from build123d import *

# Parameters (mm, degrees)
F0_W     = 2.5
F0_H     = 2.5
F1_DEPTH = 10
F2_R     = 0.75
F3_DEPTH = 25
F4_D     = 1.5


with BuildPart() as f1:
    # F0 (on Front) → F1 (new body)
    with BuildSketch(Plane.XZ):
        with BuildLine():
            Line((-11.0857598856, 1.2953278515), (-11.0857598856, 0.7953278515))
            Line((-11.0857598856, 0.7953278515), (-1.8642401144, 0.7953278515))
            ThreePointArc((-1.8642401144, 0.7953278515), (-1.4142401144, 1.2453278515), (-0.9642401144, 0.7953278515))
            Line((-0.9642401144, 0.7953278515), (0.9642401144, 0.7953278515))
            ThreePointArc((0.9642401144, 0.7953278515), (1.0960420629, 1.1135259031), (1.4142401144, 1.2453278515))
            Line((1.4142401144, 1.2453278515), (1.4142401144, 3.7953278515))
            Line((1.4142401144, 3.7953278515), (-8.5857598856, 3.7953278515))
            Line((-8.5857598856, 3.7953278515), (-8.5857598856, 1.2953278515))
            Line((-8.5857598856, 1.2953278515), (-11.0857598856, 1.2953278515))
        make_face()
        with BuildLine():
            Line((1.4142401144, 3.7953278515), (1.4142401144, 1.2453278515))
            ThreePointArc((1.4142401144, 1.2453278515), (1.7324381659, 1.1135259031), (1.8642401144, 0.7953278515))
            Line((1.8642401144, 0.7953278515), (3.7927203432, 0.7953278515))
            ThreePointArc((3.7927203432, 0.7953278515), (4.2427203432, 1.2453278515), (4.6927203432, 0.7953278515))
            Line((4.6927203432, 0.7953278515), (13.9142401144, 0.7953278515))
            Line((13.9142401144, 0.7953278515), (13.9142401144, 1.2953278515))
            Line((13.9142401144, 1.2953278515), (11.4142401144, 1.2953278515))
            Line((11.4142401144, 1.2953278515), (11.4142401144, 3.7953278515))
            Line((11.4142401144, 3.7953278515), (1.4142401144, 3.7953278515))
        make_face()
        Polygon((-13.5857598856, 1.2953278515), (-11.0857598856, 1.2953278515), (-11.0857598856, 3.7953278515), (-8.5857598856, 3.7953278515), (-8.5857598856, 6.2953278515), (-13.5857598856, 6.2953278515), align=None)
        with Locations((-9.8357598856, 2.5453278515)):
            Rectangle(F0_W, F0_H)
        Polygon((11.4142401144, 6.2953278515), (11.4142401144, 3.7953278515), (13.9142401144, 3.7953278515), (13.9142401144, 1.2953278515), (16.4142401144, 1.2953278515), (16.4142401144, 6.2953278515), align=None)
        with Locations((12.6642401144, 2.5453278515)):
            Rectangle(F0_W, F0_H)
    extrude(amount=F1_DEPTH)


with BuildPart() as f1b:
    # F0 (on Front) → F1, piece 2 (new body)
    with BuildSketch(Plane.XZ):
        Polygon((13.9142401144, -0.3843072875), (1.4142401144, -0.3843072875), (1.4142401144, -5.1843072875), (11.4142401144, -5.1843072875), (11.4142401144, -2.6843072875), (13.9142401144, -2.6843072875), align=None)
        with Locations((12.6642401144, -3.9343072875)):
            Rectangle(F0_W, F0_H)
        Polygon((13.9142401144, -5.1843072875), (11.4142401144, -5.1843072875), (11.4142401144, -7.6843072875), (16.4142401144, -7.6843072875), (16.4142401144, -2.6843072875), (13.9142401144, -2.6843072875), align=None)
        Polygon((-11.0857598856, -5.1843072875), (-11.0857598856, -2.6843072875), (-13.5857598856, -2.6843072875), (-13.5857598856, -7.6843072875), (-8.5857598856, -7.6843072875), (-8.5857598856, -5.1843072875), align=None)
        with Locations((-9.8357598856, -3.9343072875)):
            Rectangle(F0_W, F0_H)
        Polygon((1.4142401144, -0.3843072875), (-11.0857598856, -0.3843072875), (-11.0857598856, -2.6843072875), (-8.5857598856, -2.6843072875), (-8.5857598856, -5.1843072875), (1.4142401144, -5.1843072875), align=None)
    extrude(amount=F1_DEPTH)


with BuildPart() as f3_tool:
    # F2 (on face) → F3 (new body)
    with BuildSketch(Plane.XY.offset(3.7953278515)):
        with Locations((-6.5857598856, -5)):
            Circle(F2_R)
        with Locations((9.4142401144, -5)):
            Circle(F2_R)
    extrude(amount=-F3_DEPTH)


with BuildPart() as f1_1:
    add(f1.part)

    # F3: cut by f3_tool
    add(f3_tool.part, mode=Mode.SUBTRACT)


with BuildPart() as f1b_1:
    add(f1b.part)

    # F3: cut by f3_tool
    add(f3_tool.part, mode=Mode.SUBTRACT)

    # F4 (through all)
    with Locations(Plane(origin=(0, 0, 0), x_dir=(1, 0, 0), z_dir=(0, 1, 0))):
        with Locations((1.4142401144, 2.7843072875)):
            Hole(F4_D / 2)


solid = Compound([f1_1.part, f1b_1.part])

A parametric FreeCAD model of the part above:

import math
import FreeCAD as App
import Part
import Sketcher
Q = App.Units.Quantity

doc = App.newDocument("Part")
params = doc.addObject("Spreadsheet::Sheet", "Params")
for row, (alias, value) in enumerate([
    ("sketch1_width", "5 mm"),
    ("sketch1_width2", "20 mm"),
    ("sketch1_radius", "0.45 mm"),
    ("sketch1_width3", "2.5 mm"),
    ("sketch1_height", "0.5 mm"),
    ("pad1_length", "10 mm"),
    ("sketch2_width", "25 mm"),
    ("sketch2_width2", "5 mm"),
    ("sketch2_width3", "20 mm"),
    ("sketch2_height", "2.3 mm"),
    ("pad2_length", "10 mm"),
    ("sketch3_diameter", "1.5 mm"),
    ("pad3_length", "25 mm"),
    ("sketch4_diameter", "1.5 mm"),
    ("hole_diameter", "1.5 mm"),
], start=1):
    params.set(f"A{row}", alias)
    params.set(f"B{row}", "=" + value)
    params.setAlias(f"B{row}", alias)

body = doc.addObject("PartDesign::Body", "Body")

# Sketch on XZ plane
sketch1 = doc.addObject("Sketcher::SketchObject", "Sketch")
body.addObject(sketch1)
sketch1.AttachmentSupport = (doc.XZ_Plane, [""])
sketch1.MapMode = "FlatFace"
sketch1.addGeometry([
    Part.LineSegment(App.Vector(-11.09, 1.3, 0), App.Vector(-11.09, 0.8, 0)),  # 0
    Part.LineSegment(App.Vector(-11.09, 0.8, 0), App.Vector(-1.86, 0.8, 0)),  # 1
    Part.ArcOfCircle(Part.Circle(App.Vector(-1.41, 0.8, 0), App.Vector(0, 0, 1), 0.45), math.radians(0), math.radians(180)),  # 2
    Part.LineSegment(App.Vector(-0.96, 0.8, 0), App.Vector(0.96, 0.8, 0)),  # 3
    Part.ArcOfCircle(Part.Circle(App.Vector(1.41, 0.8, 0), App.Vector(0, 0, 1), 0.45), math.radians(90), math.radians(180)),  # 4
    Part.ArcOfCircle(Part.Circle(App.Vector(1.41, 0.8, 0), App.Vector(0, 0, 1), 0.45), math.radians(0), math.radians(90)),  # 5
    Part.LineSegment(App.Vector(1.86, 0.8, 0), App.Vector(3.79, 0.8, 0)),  # 6
    Part.ArcOfCircle(Part.Circle(App.Vector(4.24, 0.8, 0), App.Vector(0, 0, 1), 0.45), math.radians(0), math.radians(180)),  # 7
    Part.LineSegment(App.Vector(4.69, 0.8, 0), App.Vector(13.91, 0.8, 0)),  # 8
    Part.LineSegment(App.Vector(13.91, 0.8, 0), App.Vector(13.91, 1.3, 0)),  # 9
    Part.LineSegment(App.Vector(13.91, 1.3, 0), App.Vector(16.41, 1.3, 0)),  # 10
    Part.LineSegment(App.Vector(16.41, 1.3, 0), App.Vector(16.41, 6.3, 0)),  # 11
    Part.LineSegment(App.Vector(16.41, 6.3, 0), App.Vector(11.41, 6.3, 0)),  # 12
    Part.LineSegment(App.Vector(11.41, 6.3, 0), App.Vector(11.41, 3.8, 0)),  # 13
    Part.LineSegment(App.Vector(11.41, 3.8, 0), App.Vector(-8.59, 3.8, 0)),  # 14
    Part.LineSegment(App.Vector(-8.59, 3.8, 0), App.Vector(-8.59, 6.3, 0)),  # 15
    Part.LineSegment(App.Vector(-8.59, 6.3, 0), App.Vector(-13.59, 6.3, 0)),  # 16
    Part.LineSegment(App.Vector(-13.59, 6.3, 0), App.Vector(-13.59, 1.3, 0)),  # 17
    Part.LineSegment(App.Vector(-13.59, 1.3, 0), App.Vector(-11.09, 1.3, 0)),  # 18
], False)
sketch1.addConstraint([
    Sketcher.Constraint("Coincident", 0, 2, 1, 1),
    Sketcher.Constraint("Coincident", 1, 2, 2, 2),
    Sketcher.Constraint("Coincident", 2, 1, 3, 1),
    Sketcher.Constraint("Coincident", 3, 2, 4, 2),
    Sketcher.Constraint("Tangent", 4, 1, 5, 2),
    Sketcher.Constraint("Coincident", 5, 1, 6, 1),
    Sketcher.Constraint("Coincident", 6, 2, 7, 2),
    Sketcher.Constraint("Coincident", 7, 1, 8, 1),
    Sketcher.Constraint("Coincident", 8, 2, 9, 1),
    Sketcher.Constraint("Coincident", 9, 2, 10, 1),
    Sketcher.Constraint("Coincident", 10, 2, 11, 1),
    Sketcher.Constraint("Coincident", 11, 2, 12, 1),
    Sketcher.Constraint("Coincident", 12, 2, 13, 1),
    Sketcher.Constraint("Coincident", 13, 2, 14, 1),
    Sketcher.Constraint("Coincident", 14, 2, 15, 1),
    Sketcher.Constraint("Coincident", 15, 2, 16, 1),
    Sketcher.Constraint("Coincident", 16, 2, 17, 1),
    Sketcher.Constraint("Coincident", 17, 2, 18, 1),
    Sketcher.Constraint("Coincident", 18, 2, 0, 1),
    Sketcher.Constraint("Vertical", 0),
    Sketcher.Constraint("Horizontal", 1),
    Sketcher.Constraint("Horizontal", 3),
    Sketcher.Constraint("Horizontal", 6),
    Sketcher.Constraint("Horizontal", 8),
    Sketcher.Constraint("Vertical", 9),
    Sketcher.Constraint("Horizontal", 10),
    Sketcher.Constraint("Vertical", 11),
    Sketcher.Constraint("Horizontal", 12),
    Sketcher.Constraint("Vertical", 13),
    Sketcher.Constraint("Horizontal", 14),
    Sketcher.Constraint("Vertical", 15),
    Sketcher.Constraint("Horizontal", 16),
    Sketcher.Constraint("Vertical", 17),
    Sketcher.Constraint("Horizontal", 18),
    Sketcher.Constraint("Equal", 2, 4),
    Sketcher.Constraint("Equal", 4, 5),
    Sketcher.Constraint("Equal", 5, 7),
    Sketcher.Constraint("Symmetric", 2, 3, 4, 3, -2),
    Sketcher.Constraint("Horizontal", 5, 3, 7, 3),
    Sketcher.Constraint("Horizontal", 7, 3, 0, 2),
    Sketcher.Constraint("Horizontal", 1, 2, 2, 1),
    Sketcher.Constraint("Horizontal", 3, 2, 5, 1),
    Sketcher.Constraint("Horizontal", 6, 2, 7, 1),
    Sketcher.Constraint("Horizontal", 12, 2, 15, 2),
    Sketcher.Constraint("Horizontal", 10, 2, 17, 2),
    Sketcher.Constraint("Vertical", 5, 3, 4, 1),
    Sketcher.Constraint("Equal", 3, 6),
    Sketcher.Constraint("Equal", 1, 8),
    Sketcher.Constraint("Equal", 12, 16),
    Sketcher.Constraint("Equal", 10, 18),
    Sketcher.Constraint("Equal", 16, 11),
    Sketcher.Constraint("Equal", 18, 13),
    Sketcher.Constraint("DistanceX", 12, 2, 12, 1, Q("5 mm")),
    Sketcher.Constraint("DistanceX", 14, 2, 14, 1, Q("20 mm")),
    Sketcher.Constraint("Radius", 2, Q("0.45 mm")),
    Sketcher.Constraint("DistanceX", 10, 1, 10, 2, Q("2.5 mm")),
    Sketcher.Constraint("DistanceY", 0, 2, 0, 1, Q("0.5 mm")),
    Sketcher.Constraint("DistanceX", 1, 1, 1, 2, Q("9.22152 mm")),
    Sketcher.Constraint("DistanceY", -1, 1, 2, 3, Q("0.795328 mm")),
])
sketch1.setExpression("Constraints[52]", "Params.sketch1_width")
sketch1.setExpression("Constraints[53]", "Params.sketch1_width2")
sketch1.setExpression("Constraints[54]", "Params.sketch1_radius")
sketch1.setExpression("Constraints[55]", "Params.sketch1_width3")
sketch1.setExpression("Constraints[56]", "Params.sketch1_height")
pad1 = doc.addObject("PartDesign::Pad", "Pad")
body.addObject(pad1)
pad1.Profile = sketch1
pad1.setExpression("Length", "Params.pad1_length")
body2 = doc.addObject("PartDesign::Body", "Body001")

# Sketch on XZ plane
sketch2 = doc.addObject("Sketcher::SketchObject", "Sketch001")
body2.addObject(sketch2)
sketch2.AttachmentSupport = (doc.getObject("XZ_Plane001"), [""])
sketch2.MapMode = "FlatFace"
sketch2.addGeometry([
    Part.LineSegment(App.Vector(13.9, -0.4, 0), App.Vector(-11.1, -0.4, 0)),  # 0
    Part.LineSegment(App.Vector(-11.1, -0.4, 0), App.Vector(-11.1, -2.7, 0)),  # 1
    Part.LineSegment(App.Vector(-11.1, -2.7, 0), App.Vector(-13.6, -2.7, 0)),  # 2
    Part.LineSegment(App.Vector(-13.6, -2.7, 0), App.Vector(-13.6, -7.7, 0)),  # 3
    Part.LineSegment(App.Vector(-13.6, -7.7, 0), App.Vector(-8.6, -7.7, 0)),  # 4
    Part.LineSegment(App.Vector(-8.6, -7.7, 0), App.Vector(-8.6, -5.2, 0)),  # 5
    Part.LineSegment(App.Vector(-8.6, -5.2, 0), App.Vector(11.4, -5.2, 0)),  # 6
    Part.LineSegment(App.Vector(11.4, -5.2, 0), App.Vector(11.4, -7.7, 0)),  # 7
    Part.LineSegment(App.Vector(11.4, -7.7, 0), App.Vector(16.4, -7.7, 0)),  # 8
    Part.LineSegment(App.Vector(16.4, -7.7, 0), App.Vector(16.4, -2.7, 0)),  # 9
    Part.LineSegment(App.Vector(16.4, -2.7, 0), App.Vector(13.9, -2.7, 0)),  # 10
    Part.LineSegment(App.Vector(13.9, -2.7, 0), App.Vector(13.9, -0.4, 0)),  # 11
], False)
sketch2.addConstraint([
    Sketcher.Constraint("Coincident", 0, 2, 1, 1),
    Sketcher.Constraint("Coincident", 1, 2, 2, 1),
    Sketcher.Constraint("Coincident", 2, 2, 3, 1),
    Sketcher.Constraint("Coincident", 3, 2, 4, 1),
    Sketcher.Constraint("Coincident", 4, 2, 5, 1),
    Sketcher.Constraint("Coincident", 5, 2, 6, 1),
    Sketcher.Constraint("Coincident", 6, 2, 7, 1),
    Sketcher.Constraint("Coincident", 7, 2, 8, 1),
    Sketcher.Constraint("Coincident", 8, 2, 9, 1),
    Sketcher.Constraint("Coincident", 9, 2, 10, 1),
    Sketcher.Constraint("Coincident", 10, 2, 11, 1),
    Sketcher.Constraint("Coincident", 11, 2, 0, 1),
    Sketcher.Constraint("Horizontal", 0),
    Sketcher.Constraint("Vertical", 1),
    Sketcher.Constraint("Horizontal", 2),
    Sketcher.Constraint("Vertical", 3),
    Sketcher.Constraint("Horizontal", 4),
    Sketcher.Constraint("Vertical", 5),
    Sketcher.Constraint("Horizontal", 6),
    Sketcher.Constraint("Vertical", 7),
    Sketcher.Constraint("Horizontal", 8),
    Sketcher.Constraint("Vertical", 9),
    Sketcher.Constraint("Horizontal", 10),
    Sketcher.Constraint("Vertical", 11),
    Sketcher.Constraint("Horizontal", 4, 2, 7, 2),
    Sketcher.Constraint("Horizontal", 2, 2, 9, 2),
    Sketcher.Constraint("Equal", 4, 8),
    Sketcher.Constraint("Equal", 2, 10),
    Sketcher.Constraint("Equal", 8, 3),
    Sketcher.Constraint("Equal", 10, 5),
    Sketcher.Constraint("DistanceX", 0, 2, 0, 1, Q("25 mm")),
    Sketcher.Constraint("DistanceX", 4, 1, 4, 2, Q("5 mm")),
    Sketcher.Constraint("DistanceX", 6, 1, 6, 2, Q("20 mm")),
    Sketcher.Constraint("DistanceY", 1, 2, 1, 1, Q("2.3 mm")),
    Sketcher.Constraint("DistanceX", 0, 2, -1, 1, Q("11.08576 mm")),
    Sketcher.Constraint("DistanceY", 0, 2, -1, 1, Q("0.384307 mm")),
])
sketch2.setExpression("Constraints[30]", "Params.sketch2_width")
sketch2.setExpression("Constraints[31]", "Params.sketch2_width2")
sketch2.setExpression("Constraints[32]", "Params.sketch2_width3")
sketch2.setExpression("Constraints[33]", "Params.sketch2_height")
pad2 = doc.addObject("PartDesign::Pad", "Pad001")
body2.addObject(pad2)
pad2.Profile = sketch2
pad2.setExpression("Length", "Params.pad2_length")
body3 = doc.addObject("PartDesign::Body", "Body002")
body3.AllowCompound = True

# Sketch on XY plane
sketch3 = doc.addObject("Sketcher::SketchObject", "Sketch002")
body3.addObject(sketch3)
sketch3.AttachmentSupport = (doc.getObject("XY_Plane002"), [""])
sketch3.MapMode = "FlatFace"
sketch3.AttachmentOffset = App.Placement(App.Vector(0, 0, 3.795328), App.Rotation())
sketch3.addGeometry([
    Part.Circle(App.Vector(-6.6, -5, 0), App.Vector(0, 0, 1), 0.8),
    Part.Circle(App.Vector(9.4, -5, 0), App.Vector(0, 0, 1), 0.8),
], False)
sketch3.addConstraint([
    Sketcher.Constraint("Equal", 0, 1),
    Sketcher.Constraint("Horizontal", 0, 3, 1, 3),
    Sketcher.Constraint("Diameter", 0, Q("1.5 mm")),
    Sketcher.Constraint("DistanceY", 0, 3, -1, 1, Q("5 mm")),
    Sketcher.Constraint("DistanceX", 0, 3, 1, 3, Q("16 mm")),
    Sketcher.Constraint("DistanceX", 0, 3, -1, 1, Q("6.58576 mm")),
])
sketch3.setExpression("Constraints[2]", "Params.sketch3_diameter")
pad3 = doc.addObject("PartDesign::Pad", "Pad002")
body3.addObject(pad3)
pad3.Profile = sketch3
pad3.setExpression("Length", "Params.pad3_length")
pad3.Reversed = True
doc.recompute()

body4 = doc.addObject("PartDesign::Body", "Body003")
body4.BaseFeature = body3
boolean = doc.addObject("PartDesign::Boolean", "Boolean")
body.addObject(boolean)
boolean.Type = "Cut"
boolean.addObjects([body4])
doc.recompute()

boolean2 = doc.addObject("PartDesign::Boolean", "Boolean001")
body2.addObject(boolean2)
boolean2.Type = "Cut"
boolean2.addObjects([body3])

# Sketch on XZ plane
sketch4 = doc.addObject("Sketcher::SketchObject", "Sketch003")
body2.addObject(sketch4)
sketch4.AttachmentSupport = (doc.getObject("XZ_Plane001"), [""])
sketch4.MapMode = "FlatFace"
sketch4.addGeometry(Part.Circle(App.Vector(1.4, -2.8, 0), App.Vector(0, 0, 1), 0.8), False)
sketch4.addConstraint([
    Sketcher.Constraint("Diameter", 0, Q("1.5 mm")),
    Sketcher.Constraint("DistanceX", -1, 1, 0, 3, Q("1.41424 mm")),
    Sketcher.Constraint("DistanceY", 0, 3, -1, 1, Q("2.784307 mm")),
])
sketch4.setExpression("Constraints[0]", "Params.sketch4_diameter")
doc.recompute()
hole = doc.addObject("PartDesign::Hole", "Hole")
body2.addObject(hole)
hole.Profile = sketch4
hole.ThreadType = "None"
hole.setExpression("Diameter", "Params.hole_diameter")
hole.DepthType = "ThroughAll"
hole.Reversed = True

doc.recompute()
